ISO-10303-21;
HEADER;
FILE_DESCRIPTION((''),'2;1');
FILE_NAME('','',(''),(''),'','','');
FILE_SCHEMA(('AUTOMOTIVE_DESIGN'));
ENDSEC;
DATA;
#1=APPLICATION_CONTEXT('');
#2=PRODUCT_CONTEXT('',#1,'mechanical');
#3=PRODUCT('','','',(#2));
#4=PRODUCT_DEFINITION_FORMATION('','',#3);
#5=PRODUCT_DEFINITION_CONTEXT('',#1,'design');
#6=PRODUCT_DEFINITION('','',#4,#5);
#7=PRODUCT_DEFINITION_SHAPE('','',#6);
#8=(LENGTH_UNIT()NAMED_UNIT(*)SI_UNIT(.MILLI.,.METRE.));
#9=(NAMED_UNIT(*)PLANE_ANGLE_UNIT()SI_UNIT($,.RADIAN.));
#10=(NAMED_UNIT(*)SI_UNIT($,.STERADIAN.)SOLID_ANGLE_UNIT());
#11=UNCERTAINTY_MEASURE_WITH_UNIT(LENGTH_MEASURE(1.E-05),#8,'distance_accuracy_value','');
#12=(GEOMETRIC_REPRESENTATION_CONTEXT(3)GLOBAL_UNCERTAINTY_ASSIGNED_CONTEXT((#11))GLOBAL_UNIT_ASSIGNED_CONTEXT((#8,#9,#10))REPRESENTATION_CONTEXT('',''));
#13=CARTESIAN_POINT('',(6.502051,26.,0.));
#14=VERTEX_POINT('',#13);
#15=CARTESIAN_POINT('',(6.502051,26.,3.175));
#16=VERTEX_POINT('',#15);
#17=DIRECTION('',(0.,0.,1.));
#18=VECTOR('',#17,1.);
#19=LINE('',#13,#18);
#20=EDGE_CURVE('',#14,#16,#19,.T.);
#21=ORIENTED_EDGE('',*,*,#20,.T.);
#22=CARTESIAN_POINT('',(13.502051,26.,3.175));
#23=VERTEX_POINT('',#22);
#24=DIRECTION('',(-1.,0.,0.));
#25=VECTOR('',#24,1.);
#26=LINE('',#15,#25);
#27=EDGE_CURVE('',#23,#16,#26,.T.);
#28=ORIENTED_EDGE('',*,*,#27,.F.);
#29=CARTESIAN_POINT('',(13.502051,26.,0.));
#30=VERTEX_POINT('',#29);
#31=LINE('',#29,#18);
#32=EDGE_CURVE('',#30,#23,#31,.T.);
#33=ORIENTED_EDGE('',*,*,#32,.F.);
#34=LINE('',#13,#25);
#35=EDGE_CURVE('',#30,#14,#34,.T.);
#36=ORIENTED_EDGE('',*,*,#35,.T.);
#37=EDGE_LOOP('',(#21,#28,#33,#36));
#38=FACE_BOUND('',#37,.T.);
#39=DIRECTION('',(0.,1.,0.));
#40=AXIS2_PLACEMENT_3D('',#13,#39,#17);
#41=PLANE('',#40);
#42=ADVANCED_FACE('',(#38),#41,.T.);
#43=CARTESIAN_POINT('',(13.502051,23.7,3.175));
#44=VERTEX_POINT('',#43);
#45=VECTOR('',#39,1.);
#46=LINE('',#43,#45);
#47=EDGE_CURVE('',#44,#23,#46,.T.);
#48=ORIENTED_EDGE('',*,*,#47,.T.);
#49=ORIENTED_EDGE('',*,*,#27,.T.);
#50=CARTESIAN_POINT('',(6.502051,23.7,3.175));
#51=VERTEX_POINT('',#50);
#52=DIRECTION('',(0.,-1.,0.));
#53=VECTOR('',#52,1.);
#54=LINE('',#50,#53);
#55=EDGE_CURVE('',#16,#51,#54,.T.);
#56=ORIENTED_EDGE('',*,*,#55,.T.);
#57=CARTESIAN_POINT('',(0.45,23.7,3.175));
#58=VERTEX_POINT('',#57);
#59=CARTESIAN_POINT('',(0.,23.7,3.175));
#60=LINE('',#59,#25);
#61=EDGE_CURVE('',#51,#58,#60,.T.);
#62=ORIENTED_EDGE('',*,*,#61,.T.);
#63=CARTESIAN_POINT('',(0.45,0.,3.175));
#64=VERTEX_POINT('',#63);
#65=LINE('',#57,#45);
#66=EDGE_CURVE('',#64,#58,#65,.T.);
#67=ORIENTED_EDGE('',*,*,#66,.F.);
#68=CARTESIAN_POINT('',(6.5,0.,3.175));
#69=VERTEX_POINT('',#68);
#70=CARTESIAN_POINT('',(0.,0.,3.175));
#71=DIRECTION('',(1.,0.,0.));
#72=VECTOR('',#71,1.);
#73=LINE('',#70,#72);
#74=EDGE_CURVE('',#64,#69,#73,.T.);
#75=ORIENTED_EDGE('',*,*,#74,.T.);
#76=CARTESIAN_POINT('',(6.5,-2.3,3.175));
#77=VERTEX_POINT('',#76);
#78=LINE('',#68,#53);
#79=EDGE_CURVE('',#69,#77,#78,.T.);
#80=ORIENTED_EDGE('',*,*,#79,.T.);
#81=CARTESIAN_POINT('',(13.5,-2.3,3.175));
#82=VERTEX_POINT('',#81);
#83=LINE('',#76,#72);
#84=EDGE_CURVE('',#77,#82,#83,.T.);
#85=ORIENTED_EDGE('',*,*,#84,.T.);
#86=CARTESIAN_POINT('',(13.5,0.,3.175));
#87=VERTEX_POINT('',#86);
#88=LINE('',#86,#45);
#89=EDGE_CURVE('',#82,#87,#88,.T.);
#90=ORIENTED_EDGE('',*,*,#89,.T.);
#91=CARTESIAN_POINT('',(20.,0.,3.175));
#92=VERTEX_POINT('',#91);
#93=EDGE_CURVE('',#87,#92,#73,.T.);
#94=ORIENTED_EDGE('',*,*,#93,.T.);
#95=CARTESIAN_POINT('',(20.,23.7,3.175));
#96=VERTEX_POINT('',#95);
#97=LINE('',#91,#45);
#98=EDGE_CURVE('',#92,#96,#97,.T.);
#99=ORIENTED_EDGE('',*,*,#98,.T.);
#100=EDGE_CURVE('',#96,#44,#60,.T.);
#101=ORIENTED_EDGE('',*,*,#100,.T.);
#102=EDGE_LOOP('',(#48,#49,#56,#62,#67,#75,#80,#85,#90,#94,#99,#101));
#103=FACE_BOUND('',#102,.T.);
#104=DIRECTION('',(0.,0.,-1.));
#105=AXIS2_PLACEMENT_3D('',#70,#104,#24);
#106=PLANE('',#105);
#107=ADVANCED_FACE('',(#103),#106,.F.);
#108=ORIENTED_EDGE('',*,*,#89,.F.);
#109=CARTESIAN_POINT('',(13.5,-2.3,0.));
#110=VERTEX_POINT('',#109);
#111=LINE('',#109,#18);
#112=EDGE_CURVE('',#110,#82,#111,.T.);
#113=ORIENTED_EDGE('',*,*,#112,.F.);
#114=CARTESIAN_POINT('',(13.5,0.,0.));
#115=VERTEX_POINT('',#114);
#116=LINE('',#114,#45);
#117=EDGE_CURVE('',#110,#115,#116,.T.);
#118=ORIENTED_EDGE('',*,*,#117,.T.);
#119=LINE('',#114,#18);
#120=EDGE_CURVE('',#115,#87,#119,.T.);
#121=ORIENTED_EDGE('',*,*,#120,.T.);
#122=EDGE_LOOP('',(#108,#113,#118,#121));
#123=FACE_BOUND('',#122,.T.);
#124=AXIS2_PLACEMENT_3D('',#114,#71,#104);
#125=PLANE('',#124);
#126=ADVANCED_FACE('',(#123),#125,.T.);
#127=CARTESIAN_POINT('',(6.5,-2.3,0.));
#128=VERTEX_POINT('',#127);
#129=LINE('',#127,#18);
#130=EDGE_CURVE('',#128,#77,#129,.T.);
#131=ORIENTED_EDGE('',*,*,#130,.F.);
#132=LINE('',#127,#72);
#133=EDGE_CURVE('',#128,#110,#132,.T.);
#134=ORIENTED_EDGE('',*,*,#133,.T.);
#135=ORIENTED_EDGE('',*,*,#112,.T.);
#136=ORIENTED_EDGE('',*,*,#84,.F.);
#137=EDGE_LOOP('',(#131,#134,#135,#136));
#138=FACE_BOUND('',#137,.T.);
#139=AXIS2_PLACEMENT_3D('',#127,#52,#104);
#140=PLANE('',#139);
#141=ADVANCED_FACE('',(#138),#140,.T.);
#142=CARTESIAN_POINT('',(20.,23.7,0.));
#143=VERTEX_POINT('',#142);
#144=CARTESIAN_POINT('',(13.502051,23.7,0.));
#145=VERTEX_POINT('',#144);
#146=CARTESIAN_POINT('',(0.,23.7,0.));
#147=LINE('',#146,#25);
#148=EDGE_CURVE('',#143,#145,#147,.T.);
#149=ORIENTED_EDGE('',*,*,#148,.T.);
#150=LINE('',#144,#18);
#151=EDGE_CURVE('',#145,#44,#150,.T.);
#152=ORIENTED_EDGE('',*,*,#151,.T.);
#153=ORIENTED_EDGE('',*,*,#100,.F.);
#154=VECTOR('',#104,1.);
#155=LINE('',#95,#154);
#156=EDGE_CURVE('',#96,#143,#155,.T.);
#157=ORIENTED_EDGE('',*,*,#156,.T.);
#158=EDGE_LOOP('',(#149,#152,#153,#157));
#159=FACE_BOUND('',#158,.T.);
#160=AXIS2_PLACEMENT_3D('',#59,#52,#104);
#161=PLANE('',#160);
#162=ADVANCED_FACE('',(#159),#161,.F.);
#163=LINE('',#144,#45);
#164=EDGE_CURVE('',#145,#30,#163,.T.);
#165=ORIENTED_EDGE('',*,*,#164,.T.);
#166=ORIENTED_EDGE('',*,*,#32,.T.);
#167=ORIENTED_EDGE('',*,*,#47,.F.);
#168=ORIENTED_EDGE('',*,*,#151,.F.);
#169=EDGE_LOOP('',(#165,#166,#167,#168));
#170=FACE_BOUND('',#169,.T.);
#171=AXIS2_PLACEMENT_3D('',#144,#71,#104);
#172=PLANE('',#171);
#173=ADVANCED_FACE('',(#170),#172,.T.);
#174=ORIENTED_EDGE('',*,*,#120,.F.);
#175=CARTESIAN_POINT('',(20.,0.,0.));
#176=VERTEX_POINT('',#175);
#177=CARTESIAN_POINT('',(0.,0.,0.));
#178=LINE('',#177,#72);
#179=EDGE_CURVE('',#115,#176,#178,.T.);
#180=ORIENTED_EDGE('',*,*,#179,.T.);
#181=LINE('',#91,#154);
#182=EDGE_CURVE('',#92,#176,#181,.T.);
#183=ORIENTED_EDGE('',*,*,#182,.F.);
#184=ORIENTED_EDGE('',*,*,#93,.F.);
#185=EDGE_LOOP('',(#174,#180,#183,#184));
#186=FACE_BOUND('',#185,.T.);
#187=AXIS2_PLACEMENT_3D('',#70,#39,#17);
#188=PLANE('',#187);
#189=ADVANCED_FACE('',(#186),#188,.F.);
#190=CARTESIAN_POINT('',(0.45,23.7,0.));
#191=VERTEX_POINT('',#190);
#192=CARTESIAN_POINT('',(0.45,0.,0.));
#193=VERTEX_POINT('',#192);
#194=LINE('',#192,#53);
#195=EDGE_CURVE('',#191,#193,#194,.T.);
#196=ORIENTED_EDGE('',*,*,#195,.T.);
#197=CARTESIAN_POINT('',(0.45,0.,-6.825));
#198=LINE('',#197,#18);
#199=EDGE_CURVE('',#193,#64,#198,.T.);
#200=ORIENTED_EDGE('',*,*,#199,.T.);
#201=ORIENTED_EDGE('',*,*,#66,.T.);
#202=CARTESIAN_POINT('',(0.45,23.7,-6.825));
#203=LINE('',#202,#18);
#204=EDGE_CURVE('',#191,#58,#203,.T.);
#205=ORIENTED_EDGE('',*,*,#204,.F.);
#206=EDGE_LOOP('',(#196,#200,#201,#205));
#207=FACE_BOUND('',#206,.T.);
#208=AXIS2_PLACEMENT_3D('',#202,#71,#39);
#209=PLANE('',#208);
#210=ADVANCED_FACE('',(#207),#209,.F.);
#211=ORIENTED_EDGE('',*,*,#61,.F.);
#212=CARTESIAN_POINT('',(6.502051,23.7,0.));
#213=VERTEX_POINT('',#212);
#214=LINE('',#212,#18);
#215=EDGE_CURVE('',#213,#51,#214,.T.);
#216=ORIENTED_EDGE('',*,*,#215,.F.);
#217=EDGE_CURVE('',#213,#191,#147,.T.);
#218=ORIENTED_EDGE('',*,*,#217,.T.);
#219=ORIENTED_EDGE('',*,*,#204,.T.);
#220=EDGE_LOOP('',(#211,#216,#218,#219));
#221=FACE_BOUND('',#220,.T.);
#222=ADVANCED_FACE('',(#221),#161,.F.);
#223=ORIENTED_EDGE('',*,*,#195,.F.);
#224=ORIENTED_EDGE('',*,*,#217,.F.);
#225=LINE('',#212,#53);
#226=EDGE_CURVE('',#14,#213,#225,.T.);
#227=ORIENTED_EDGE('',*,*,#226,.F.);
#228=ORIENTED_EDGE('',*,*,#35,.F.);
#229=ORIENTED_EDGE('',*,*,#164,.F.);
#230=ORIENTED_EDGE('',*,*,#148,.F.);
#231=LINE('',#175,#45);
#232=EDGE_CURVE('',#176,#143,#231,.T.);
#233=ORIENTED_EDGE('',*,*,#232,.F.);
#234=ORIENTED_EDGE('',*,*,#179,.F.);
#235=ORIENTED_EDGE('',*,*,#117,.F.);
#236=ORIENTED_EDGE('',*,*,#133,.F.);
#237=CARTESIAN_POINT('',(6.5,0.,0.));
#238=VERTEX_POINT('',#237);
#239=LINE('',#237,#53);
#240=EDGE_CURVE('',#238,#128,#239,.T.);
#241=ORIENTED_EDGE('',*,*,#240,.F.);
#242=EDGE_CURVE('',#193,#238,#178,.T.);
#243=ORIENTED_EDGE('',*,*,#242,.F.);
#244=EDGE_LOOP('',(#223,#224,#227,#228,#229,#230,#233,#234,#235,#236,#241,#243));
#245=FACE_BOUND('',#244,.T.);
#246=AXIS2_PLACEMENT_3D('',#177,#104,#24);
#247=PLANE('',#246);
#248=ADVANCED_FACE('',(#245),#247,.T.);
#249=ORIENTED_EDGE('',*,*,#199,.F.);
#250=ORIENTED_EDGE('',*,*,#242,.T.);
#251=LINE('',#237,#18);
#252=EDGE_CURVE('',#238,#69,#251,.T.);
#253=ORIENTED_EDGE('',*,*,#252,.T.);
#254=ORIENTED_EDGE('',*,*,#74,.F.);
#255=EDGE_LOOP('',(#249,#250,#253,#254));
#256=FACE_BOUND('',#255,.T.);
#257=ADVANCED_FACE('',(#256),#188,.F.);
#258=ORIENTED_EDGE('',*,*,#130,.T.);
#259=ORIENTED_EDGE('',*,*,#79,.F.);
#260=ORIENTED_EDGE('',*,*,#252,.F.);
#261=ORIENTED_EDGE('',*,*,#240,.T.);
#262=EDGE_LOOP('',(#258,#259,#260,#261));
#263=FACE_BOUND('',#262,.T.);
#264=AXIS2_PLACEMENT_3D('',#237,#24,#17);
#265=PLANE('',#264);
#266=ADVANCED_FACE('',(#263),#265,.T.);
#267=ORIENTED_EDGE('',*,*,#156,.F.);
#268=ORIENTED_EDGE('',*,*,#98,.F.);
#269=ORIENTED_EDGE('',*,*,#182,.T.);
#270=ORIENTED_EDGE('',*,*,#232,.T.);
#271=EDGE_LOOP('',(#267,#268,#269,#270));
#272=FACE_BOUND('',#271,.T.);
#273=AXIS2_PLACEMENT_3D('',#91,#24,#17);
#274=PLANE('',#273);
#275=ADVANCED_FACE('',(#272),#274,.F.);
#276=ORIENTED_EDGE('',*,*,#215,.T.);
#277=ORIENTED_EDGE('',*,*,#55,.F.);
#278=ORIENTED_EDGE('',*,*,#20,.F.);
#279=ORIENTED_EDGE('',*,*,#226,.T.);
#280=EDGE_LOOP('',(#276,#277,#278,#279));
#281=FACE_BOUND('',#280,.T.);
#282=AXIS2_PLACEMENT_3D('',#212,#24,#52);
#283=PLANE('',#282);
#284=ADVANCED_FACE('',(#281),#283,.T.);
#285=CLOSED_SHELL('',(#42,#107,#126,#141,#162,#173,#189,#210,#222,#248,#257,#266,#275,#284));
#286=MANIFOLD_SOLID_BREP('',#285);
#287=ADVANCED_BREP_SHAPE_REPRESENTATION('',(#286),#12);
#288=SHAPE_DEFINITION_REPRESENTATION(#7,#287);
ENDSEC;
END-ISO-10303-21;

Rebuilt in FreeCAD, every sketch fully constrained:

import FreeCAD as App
import Part
import Sketcher

V = App.Vector
Q = App.Units.Quantity


def add_polygon(sketch, points):
    """Adds a closed chain of lines whose ends are joined by coincident constraints."""
    first, n = sketch.GeometryCount, len(points)
    for a, b in zip(points, points[1:] + points[:1]):
        sketch.addGeometry(Part.LineSegment(App.Vector(*a, 0), App.Vector(*b, 0)), False)
    for i in range(n):
        sketch.addConstraint(Sketcher.Constraint("Coincident", first + i, 2, first + (i + 1) % n, 1))

doc = App.newDocument("Part")
params = doc.addObject("Spreadsheet::Sheet", "Params")
for row, (alias, value) in enumerate([
    ("sketch1_width", "20 mm"),
    ("sketch1_height", "23.7 mm"),
    ("pad1_length", "3.175 mm"),
    ("sketch2_width", "7 mm"),
    ("sketch2_height", "2.3 mm"),
    ("pad2_length", "3.175 mm"),
    ("sketch3_height", "23.7 mm"),
    ("sketch3_width", "0.45 mm"),
    ("pocket1_length", "10 mm"),
], start=1):
    params.set(f"A{row}", alias)
    params.set(f"B{row}", "=" + value)
    params.setAlias(f"B{row}", alias)

body = doc.addObject("PartDesign::Body", "Body")

# Sketch on XY plane
sketch1 = body.newObject("Sketcher::SketchObject", "Sketch")
sketch1.AttachmentSupport = (doc.getObject("XY_Plane"), [""])
sketch1.MapMode = "FlatFace"
add_polygon(sketch1, [(0, 24), (0, 0), (20, 0), (20, 24)])  # lines 0-3
sketch1.addConstraint([
    Sketcher.Constraint("Vertical", 0),
    Sketcher.Constraint("Horizontal", 1),
    Sketcher.Constraint("Vertical", 2),
    Sketcher.Constraint("Horizontal", 3),
    Sketcher.Constraint("Coincident", 0, 2, -1, 1),
    Sketcher.Constraint("DistanceX", 1, 1, 1, 2, Q("20 mm")),
    Sketcher.Constraint("DistanceY", 0, 2, 0, 1, Q("23.7 mm")),
])
sketch1.setExpression("Constraints[9]", "Params.sketch1_width")
sketch1.setExpression("Constraints[10]", "Params.sketch1_height")
pad1 = body.newObject("PartDesign::Pad", "Pad")
pad1.Profile = sketch1
pad1.setExpression("Length", "Params.pad1_length")

# Sketch on XY plane
sketch2 = body.newObject("Sketcher::SketchObject", "Sketch001")
sketch2.AttachmentSupport = (doc.getObject("XY_Plane"), [""])
sketch2.MapMode = "FlatFace"
sketch2.AttachmentOffset = App.Placement(V(0, 0, 3.175), App.Rotation())
add_polygon(sketch2, [(6.5, 26), (6.5, 23.7), (13.5, 23.7), (13.5, 26)])  # lines 0-3
add_polygon(sketch2, [(6.5, 0), (6.5, -2.3), (13.5, -2.3), (13.5, 0)])  # lines 4-7
sketch2.addConstraint([
    Sketcher.Constraint("Vertical", 0),
    Sketcher.Constraint("Horizontal", 1),
    Sketcher.Constraint("Vertical", 2),
    Sketcher.Constraint("Horizontal", 3),
    Sketcher.Constraint("Vertical", 4),
    Sketcher.Constraint("Horizontal", 5),
    Sketcher.Constraint("Vertical", 6),
    Sketcher.Constraint("Horizontal", 7),
    Sketcher.Constraint("PointOnObject", 6, 2, -1),
    Sketcher.Constraint("Equal", 3, 5),
    Sketcher.Constraint("Equal", 2, 4),
    Sketcher.Constraint("DistanceX", 1, 1, 1, 2, Q("7 mm")),
    Sketcher.Constraint("DistanceY", 0, 2, 0, 1, Q("2.3 mm")),
    Sketcher.Constraint("DistanceY", -1, 1, 2, 2, Q("26 mm")),
    Sketcher.Constraint("DistanceX", -1, 1, 4, 2, Q("6.5 mm")),
    Sketcher.Constraint("DistanceX", -1, 1, 0, 2, Q("6.502051 mm")),
])
sketch2.setExpression("Constraints[19]", "Params.sketch2_width")
sketch2.setExpression("Constraints[20]", "Params.sketch2_height")
pad2 = body.newObject("PartDesign::Pad", "Pad001")
pad2.Profile = sketch2
pad2.setExpression("Length", "Params.pad2_length")
pad2.Reversed = True

# Sketch on XY plane
sketch3 = body.newObject("Sketcher::SketchObject", "Sketch002")
sketch3.AttachmentSupport = (doc.getObject("XY_Plane"), [""])
sketch3.MapMode = "FlatFace"
sketch3.AttachmentOffset = App.Placement(V(0, 0, 3.175), App.Rotation())
add_polygon(sketch3, [(0, 23.7), (0, 0), (0.45, 0), (0.45, 23.7)])  # lines 0-3
sketch3.addConstraint([
    Sketcher.Constraint("Vertical", 0),
    Sketcher.Constraint("Horizontal", 1),
    Sketcher.Constraint("Vertical", 2),
    Sketcher.Constraint("Horizontal", 3),
    Sketcher.Constraint("Coincident", 0, 2, -1, 1),
    Sketcher.Constraint("DistanceY", 0, 2, 0, 1, Q("23.7 mm")),
    Sketcher.Constraint("DistanceX", 1, 1, 1, 2, Q("0.45 mm")),
])
sketch3.setExpression("Constraints[9]", "Params.sketch3_height")
sketch3.setExpression("Constraints[10]", "Params.sketch3_width")
pocket1 = body.newObject("PartDesign::Pocket", "Pocket")
pocket1.Profile = sketch3
pocket1.setExpression("Length", "Params.pocket1_length")

doc.recompute()
